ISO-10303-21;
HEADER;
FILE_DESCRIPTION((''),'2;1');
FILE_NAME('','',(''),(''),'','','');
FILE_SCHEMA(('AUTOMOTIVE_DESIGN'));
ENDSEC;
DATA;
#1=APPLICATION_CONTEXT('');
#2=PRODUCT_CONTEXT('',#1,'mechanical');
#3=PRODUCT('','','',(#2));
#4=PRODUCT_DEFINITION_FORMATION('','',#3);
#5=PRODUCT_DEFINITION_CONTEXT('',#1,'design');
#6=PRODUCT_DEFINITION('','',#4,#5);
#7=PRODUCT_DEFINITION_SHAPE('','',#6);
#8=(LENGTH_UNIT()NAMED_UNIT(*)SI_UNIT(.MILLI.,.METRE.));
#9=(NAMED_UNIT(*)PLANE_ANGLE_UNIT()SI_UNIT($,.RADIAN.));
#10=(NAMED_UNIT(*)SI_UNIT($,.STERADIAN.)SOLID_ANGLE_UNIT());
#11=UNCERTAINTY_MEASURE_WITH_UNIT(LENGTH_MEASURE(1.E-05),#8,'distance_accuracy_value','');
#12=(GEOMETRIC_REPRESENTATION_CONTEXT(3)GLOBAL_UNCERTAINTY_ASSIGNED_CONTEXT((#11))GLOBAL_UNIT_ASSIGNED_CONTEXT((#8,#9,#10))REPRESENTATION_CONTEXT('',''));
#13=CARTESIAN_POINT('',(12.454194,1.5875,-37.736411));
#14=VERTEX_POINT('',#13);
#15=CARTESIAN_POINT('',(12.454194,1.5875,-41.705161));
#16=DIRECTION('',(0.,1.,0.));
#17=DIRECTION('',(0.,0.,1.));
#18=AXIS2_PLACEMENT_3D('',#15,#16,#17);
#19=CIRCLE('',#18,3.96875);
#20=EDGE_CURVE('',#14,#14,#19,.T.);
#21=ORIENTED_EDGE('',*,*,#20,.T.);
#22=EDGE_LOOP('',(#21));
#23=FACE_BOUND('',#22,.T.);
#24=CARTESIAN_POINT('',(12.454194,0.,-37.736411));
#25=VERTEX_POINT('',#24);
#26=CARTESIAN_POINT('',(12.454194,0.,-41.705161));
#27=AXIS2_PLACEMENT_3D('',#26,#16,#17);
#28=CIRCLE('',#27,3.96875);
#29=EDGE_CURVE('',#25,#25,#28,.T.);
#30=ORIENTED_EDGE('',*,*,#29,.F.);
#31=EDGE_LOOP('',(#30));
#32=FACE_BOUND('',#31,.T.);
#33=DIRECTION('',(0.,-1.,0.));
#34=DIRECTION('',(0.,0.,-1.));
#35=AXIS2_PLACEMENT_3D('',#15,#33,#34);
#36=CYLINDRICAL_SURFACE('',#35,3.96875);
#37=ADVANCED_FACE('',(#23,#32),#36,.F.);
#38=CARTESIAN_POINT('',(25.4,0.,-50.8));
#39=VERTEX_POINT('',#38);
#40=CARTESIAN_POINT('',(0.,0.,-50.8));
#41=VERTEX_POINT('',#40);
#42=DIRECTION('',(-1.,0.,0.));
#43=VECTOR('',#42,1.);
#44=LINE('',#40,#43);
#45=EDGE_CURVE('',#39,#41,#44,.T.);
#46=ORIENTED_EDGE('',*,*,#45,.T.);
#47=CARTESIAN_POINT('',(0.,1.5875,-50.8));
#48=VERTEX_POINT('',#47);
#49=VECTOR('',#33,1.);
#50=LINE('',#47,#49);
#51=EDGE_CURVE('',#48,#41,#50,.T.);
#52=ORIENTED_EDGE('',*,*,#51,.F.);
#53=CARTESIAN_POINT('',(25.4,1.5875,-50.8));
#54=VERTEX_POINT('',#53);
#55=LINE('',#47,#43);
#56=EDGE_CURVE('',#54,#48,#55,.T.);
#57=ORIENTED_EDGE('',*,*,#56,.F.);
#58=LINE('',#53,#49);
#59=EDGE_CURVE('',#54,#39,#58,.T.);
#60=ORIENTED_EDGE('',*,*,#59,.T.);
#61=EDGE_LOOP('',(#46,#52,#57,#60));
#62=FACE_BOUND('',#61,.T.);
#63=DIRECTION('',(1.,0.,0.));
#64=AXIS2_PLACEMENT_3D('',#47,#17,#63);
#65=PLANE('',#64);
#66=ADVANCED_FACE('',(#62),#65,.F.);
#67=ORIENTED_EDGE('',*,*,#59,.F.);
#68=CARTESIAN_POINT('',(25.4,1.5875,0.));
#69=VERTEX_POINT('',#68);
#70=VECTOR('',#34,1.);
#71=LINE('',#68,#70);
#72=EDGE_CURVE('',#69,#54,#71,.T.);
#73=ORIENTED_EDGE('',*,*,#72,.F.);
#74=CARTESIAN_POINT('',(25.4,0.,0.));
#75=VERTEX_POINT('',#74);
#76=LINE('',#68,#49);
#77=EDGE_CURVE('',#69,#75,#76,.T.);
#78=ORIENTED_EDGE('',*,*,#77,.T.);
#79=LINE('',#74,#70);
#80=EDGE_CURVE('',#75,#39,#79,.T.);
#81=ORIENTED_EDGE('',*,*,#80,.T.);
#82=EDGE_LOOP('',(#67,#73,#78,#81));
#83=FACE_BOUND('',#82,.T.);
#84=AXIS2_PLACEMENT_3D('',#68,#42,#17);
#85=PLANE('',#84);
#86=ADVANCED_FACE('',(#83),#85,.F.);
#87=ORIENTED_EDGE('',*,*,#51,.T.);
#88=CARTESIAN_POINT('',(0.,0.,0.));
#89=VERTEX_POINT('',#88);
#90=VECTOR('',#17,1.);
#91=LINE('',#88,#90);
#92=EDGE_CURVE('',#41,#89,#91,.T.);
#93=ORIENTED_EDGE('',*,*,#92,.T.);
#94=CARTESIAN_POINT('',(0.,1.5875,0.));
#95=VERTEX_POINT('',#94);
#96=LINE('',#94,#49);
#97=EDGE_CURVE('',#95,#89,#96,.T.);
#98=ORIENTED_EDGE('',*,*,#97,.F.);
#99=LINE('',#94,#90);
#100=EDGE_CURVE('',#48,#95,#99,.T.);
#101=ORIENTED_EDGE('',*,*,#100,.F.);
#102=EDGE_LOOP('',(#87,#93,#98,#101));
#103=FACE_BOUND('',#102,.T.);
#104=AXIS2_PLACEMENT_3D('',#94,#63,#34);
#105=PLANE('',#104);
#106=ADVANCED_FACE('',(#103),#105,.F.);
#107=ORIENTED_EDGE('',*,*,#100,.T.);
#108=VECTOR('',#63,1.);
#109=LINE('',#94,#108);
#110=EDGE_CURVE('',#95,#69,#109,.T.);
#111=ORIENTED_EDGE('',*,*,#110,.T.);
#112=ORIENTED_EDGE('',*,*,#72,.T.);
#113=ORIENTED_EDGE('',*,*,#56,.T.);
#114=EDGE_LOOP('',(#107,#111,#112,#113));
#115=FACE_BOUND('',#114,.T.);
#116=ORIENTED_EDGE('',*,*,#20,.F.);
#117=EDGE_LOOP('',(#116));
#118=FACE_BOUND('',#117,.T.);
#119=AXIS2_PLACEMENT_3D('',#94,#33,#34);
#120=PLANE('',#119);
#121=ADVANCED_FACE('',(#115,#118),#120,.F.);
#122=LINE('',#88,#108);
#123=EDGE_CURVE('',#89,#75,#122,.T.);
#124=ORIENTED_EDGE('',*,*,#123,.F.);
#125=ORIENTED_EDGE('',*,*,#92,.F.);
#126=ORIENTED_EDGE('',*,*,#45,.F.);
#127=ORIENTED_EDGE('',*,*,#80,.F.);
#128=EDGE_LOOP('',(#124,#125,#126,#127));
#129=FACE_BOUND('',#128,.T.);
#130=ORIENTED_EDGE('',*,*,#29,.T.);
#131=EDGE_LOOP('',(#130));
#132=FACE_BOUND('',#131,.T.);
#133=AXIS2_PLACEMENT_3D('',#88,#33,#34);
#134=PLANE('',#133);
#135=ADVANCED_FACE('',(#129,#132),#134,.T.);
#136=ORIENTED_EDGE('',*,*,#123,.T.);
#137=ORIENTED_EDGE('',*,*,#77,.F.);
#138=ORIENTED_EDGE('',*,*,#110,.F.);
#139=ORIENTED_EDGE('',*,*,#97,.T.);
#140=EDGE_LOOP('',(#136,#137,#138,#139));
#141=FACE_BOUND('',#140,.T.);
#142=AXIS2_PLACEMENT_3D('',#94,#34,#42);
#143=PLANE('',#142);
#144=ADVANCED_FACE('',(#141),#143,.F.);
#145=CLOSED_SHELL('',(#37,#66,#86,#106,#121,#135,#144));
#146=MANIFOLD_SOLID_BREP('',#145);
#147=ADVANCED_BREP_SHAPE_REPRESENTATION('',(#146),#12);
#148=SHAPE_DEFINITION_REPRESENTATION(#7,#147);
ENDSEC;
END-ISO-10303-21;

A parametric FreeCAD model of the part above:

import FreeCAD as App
import Part
import Sketcher
Q = App.Units.Quantity

doc = App.newDocument("Part")
params = doc.addObject("Spreadsheet::Sheet", "Params")
for row, (alias, value) in enumerate([
    ("sketch1_width", "1 in"),
    ("sketch1_height", "2 in"),
    ("sketch1_diameter", "0.3125 in"),
    ("pad1_length", "0.0625 in"),
], start=1):
    params.set(f"A{row}", alias)
    params.set(f"B{row}", "=" + value)
    params.setAlias(f"B{row}", alias)

body = doc.addObject("PartDesign::Body", "Body")

sketch1 = body.newObject("Sketcher::SketchObject", "Sketch")
sketch1.AttachmentSupport = (doc.getObject("XZ_Plane"), [""])
sketch1.MapMode = "FlatFace"
sketch1.addGeometry([
    Part.LineSegment(App.Vector(0, -50.8, 0), App.Vector(0, 0, 0)),
    Part.LineSegment(App.Vector(0, 0, 0), App.Vector(25.4, 0, 0)),
    Part.LineSegment(App.Vector(25.4, 0, 0), App.Vector(25.4, -50.8, 0)),
    Part.LineSegment(App.Vector(25.4, -50.8, 0), App.Vector(0, -50.8, 0)),
    Part.Circle(App.Vector(12.5, -41.7, 0), App.Vector(0, 0, 1), 4),
], False)
sketch1.addConstraint([
    Sketcher.Constraint("Coincident", 0, 2, 1, 1),
    Sketcher.Constraint("Coincident", 1, 2, 2, 1),
    Sketcher.Constraint("Coincident", 2, 2, 3, 1),
    Sketcher.Constraint("Coincident", 3, 2, 0, 1),
    Sketcher.Constraint("Vertical", 0),
    Sketcher.Constraint("Horizontal", 1),
    Sketcher.Constraint("Vertical", 2),
    Sketcher.Constraint("Horizontal", 3),
    Sketcher.Constraint("Coincident", 0, 2, -1, 1),
    Sketcher.Constraint("DistanceX", 1, 1, 1, 2, Q("1 in")),
    Sketcher.Constraint("DistanceY", 0, 1, 0, 2, Q("2 in")),
    Sketcher.Constraint("Diameter", 4, Q("0.3125 in")),
    Sketcher.Constraint("DistanceY", 4, 3, -1, 1, 41.705161),
    Sketcher.Constraint("DistanceX", -1, 1, 4, 3, 12.454194),
])
sketch1.setExpression("Constraints[9]", "Params.sketch1_width")
sketch1.setExpression("Constraints[10]", "Params.sketch1_height")
sketch1.setExpression("Constraints[11]", "Params.sketch1_diameter")
pad1 = body.newObject("PartDesign::Pad", "Pad")
pad1.Profile = sketch1
pad1.setExpression("Length", "Params.pad1_length")
pad1.Reversed = True

doc.recompute()
